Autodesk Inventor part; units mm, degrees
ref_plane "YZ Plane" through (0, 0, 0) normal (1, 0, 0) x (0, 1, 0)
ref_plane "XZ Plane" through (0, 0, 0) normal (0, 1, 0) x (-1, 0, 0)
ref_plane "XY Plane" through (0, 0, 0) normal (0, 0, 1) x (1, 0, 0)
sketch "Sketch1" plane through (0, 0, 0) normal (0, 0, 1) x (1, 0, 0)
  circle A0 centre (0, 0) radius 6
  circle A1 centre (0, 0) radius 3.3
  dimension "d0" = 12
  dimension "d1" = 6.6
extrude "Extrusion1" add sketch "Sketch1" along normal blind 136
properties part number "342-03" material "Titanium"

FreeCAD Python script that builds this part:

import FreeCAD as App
import Part
import Sketcher
from FreeCAD import Vector
Q = App.Units.Quantity

doc = App.newDocument("Part")
body = doc.addObject("PartDesign::Body", "Body")

sketch1 = doc.addObject("Sketcher::SketchObject", "Sketch")
body.addObject(sketch1)
sketch1.AttachmentSupport = (doc.XY_Plane, [""])
sketch1.MapMode = "FlatFace"
sketch1.addGeometry([
    Part.Circle(Vector(0, 0, 0), Vector(0, 0, 1), 6),
    Part.Circle(Vector(0, 0, 0), Vector(0, 0, 1), 3.3),
], False)
sketch1.addConstraint([
    Sketcher.Constraint("Coincident", 0, 3, -1, 1),
    Sketcher.Constraint("Coincident", 1, 3, -1, 1),
    Sketcher.Constraint("Diameter", 0, Q("12 mm")),
    Sketcher.Constraint("Diameter", 1, Q("6.6 mm")),
])
pad1 = doc.addObject("PartDesign::Pad", "Pad")
body.addObject(pad1)
pad1.Profile = sketch1
pad1.Length = 136

doc.recompute()
